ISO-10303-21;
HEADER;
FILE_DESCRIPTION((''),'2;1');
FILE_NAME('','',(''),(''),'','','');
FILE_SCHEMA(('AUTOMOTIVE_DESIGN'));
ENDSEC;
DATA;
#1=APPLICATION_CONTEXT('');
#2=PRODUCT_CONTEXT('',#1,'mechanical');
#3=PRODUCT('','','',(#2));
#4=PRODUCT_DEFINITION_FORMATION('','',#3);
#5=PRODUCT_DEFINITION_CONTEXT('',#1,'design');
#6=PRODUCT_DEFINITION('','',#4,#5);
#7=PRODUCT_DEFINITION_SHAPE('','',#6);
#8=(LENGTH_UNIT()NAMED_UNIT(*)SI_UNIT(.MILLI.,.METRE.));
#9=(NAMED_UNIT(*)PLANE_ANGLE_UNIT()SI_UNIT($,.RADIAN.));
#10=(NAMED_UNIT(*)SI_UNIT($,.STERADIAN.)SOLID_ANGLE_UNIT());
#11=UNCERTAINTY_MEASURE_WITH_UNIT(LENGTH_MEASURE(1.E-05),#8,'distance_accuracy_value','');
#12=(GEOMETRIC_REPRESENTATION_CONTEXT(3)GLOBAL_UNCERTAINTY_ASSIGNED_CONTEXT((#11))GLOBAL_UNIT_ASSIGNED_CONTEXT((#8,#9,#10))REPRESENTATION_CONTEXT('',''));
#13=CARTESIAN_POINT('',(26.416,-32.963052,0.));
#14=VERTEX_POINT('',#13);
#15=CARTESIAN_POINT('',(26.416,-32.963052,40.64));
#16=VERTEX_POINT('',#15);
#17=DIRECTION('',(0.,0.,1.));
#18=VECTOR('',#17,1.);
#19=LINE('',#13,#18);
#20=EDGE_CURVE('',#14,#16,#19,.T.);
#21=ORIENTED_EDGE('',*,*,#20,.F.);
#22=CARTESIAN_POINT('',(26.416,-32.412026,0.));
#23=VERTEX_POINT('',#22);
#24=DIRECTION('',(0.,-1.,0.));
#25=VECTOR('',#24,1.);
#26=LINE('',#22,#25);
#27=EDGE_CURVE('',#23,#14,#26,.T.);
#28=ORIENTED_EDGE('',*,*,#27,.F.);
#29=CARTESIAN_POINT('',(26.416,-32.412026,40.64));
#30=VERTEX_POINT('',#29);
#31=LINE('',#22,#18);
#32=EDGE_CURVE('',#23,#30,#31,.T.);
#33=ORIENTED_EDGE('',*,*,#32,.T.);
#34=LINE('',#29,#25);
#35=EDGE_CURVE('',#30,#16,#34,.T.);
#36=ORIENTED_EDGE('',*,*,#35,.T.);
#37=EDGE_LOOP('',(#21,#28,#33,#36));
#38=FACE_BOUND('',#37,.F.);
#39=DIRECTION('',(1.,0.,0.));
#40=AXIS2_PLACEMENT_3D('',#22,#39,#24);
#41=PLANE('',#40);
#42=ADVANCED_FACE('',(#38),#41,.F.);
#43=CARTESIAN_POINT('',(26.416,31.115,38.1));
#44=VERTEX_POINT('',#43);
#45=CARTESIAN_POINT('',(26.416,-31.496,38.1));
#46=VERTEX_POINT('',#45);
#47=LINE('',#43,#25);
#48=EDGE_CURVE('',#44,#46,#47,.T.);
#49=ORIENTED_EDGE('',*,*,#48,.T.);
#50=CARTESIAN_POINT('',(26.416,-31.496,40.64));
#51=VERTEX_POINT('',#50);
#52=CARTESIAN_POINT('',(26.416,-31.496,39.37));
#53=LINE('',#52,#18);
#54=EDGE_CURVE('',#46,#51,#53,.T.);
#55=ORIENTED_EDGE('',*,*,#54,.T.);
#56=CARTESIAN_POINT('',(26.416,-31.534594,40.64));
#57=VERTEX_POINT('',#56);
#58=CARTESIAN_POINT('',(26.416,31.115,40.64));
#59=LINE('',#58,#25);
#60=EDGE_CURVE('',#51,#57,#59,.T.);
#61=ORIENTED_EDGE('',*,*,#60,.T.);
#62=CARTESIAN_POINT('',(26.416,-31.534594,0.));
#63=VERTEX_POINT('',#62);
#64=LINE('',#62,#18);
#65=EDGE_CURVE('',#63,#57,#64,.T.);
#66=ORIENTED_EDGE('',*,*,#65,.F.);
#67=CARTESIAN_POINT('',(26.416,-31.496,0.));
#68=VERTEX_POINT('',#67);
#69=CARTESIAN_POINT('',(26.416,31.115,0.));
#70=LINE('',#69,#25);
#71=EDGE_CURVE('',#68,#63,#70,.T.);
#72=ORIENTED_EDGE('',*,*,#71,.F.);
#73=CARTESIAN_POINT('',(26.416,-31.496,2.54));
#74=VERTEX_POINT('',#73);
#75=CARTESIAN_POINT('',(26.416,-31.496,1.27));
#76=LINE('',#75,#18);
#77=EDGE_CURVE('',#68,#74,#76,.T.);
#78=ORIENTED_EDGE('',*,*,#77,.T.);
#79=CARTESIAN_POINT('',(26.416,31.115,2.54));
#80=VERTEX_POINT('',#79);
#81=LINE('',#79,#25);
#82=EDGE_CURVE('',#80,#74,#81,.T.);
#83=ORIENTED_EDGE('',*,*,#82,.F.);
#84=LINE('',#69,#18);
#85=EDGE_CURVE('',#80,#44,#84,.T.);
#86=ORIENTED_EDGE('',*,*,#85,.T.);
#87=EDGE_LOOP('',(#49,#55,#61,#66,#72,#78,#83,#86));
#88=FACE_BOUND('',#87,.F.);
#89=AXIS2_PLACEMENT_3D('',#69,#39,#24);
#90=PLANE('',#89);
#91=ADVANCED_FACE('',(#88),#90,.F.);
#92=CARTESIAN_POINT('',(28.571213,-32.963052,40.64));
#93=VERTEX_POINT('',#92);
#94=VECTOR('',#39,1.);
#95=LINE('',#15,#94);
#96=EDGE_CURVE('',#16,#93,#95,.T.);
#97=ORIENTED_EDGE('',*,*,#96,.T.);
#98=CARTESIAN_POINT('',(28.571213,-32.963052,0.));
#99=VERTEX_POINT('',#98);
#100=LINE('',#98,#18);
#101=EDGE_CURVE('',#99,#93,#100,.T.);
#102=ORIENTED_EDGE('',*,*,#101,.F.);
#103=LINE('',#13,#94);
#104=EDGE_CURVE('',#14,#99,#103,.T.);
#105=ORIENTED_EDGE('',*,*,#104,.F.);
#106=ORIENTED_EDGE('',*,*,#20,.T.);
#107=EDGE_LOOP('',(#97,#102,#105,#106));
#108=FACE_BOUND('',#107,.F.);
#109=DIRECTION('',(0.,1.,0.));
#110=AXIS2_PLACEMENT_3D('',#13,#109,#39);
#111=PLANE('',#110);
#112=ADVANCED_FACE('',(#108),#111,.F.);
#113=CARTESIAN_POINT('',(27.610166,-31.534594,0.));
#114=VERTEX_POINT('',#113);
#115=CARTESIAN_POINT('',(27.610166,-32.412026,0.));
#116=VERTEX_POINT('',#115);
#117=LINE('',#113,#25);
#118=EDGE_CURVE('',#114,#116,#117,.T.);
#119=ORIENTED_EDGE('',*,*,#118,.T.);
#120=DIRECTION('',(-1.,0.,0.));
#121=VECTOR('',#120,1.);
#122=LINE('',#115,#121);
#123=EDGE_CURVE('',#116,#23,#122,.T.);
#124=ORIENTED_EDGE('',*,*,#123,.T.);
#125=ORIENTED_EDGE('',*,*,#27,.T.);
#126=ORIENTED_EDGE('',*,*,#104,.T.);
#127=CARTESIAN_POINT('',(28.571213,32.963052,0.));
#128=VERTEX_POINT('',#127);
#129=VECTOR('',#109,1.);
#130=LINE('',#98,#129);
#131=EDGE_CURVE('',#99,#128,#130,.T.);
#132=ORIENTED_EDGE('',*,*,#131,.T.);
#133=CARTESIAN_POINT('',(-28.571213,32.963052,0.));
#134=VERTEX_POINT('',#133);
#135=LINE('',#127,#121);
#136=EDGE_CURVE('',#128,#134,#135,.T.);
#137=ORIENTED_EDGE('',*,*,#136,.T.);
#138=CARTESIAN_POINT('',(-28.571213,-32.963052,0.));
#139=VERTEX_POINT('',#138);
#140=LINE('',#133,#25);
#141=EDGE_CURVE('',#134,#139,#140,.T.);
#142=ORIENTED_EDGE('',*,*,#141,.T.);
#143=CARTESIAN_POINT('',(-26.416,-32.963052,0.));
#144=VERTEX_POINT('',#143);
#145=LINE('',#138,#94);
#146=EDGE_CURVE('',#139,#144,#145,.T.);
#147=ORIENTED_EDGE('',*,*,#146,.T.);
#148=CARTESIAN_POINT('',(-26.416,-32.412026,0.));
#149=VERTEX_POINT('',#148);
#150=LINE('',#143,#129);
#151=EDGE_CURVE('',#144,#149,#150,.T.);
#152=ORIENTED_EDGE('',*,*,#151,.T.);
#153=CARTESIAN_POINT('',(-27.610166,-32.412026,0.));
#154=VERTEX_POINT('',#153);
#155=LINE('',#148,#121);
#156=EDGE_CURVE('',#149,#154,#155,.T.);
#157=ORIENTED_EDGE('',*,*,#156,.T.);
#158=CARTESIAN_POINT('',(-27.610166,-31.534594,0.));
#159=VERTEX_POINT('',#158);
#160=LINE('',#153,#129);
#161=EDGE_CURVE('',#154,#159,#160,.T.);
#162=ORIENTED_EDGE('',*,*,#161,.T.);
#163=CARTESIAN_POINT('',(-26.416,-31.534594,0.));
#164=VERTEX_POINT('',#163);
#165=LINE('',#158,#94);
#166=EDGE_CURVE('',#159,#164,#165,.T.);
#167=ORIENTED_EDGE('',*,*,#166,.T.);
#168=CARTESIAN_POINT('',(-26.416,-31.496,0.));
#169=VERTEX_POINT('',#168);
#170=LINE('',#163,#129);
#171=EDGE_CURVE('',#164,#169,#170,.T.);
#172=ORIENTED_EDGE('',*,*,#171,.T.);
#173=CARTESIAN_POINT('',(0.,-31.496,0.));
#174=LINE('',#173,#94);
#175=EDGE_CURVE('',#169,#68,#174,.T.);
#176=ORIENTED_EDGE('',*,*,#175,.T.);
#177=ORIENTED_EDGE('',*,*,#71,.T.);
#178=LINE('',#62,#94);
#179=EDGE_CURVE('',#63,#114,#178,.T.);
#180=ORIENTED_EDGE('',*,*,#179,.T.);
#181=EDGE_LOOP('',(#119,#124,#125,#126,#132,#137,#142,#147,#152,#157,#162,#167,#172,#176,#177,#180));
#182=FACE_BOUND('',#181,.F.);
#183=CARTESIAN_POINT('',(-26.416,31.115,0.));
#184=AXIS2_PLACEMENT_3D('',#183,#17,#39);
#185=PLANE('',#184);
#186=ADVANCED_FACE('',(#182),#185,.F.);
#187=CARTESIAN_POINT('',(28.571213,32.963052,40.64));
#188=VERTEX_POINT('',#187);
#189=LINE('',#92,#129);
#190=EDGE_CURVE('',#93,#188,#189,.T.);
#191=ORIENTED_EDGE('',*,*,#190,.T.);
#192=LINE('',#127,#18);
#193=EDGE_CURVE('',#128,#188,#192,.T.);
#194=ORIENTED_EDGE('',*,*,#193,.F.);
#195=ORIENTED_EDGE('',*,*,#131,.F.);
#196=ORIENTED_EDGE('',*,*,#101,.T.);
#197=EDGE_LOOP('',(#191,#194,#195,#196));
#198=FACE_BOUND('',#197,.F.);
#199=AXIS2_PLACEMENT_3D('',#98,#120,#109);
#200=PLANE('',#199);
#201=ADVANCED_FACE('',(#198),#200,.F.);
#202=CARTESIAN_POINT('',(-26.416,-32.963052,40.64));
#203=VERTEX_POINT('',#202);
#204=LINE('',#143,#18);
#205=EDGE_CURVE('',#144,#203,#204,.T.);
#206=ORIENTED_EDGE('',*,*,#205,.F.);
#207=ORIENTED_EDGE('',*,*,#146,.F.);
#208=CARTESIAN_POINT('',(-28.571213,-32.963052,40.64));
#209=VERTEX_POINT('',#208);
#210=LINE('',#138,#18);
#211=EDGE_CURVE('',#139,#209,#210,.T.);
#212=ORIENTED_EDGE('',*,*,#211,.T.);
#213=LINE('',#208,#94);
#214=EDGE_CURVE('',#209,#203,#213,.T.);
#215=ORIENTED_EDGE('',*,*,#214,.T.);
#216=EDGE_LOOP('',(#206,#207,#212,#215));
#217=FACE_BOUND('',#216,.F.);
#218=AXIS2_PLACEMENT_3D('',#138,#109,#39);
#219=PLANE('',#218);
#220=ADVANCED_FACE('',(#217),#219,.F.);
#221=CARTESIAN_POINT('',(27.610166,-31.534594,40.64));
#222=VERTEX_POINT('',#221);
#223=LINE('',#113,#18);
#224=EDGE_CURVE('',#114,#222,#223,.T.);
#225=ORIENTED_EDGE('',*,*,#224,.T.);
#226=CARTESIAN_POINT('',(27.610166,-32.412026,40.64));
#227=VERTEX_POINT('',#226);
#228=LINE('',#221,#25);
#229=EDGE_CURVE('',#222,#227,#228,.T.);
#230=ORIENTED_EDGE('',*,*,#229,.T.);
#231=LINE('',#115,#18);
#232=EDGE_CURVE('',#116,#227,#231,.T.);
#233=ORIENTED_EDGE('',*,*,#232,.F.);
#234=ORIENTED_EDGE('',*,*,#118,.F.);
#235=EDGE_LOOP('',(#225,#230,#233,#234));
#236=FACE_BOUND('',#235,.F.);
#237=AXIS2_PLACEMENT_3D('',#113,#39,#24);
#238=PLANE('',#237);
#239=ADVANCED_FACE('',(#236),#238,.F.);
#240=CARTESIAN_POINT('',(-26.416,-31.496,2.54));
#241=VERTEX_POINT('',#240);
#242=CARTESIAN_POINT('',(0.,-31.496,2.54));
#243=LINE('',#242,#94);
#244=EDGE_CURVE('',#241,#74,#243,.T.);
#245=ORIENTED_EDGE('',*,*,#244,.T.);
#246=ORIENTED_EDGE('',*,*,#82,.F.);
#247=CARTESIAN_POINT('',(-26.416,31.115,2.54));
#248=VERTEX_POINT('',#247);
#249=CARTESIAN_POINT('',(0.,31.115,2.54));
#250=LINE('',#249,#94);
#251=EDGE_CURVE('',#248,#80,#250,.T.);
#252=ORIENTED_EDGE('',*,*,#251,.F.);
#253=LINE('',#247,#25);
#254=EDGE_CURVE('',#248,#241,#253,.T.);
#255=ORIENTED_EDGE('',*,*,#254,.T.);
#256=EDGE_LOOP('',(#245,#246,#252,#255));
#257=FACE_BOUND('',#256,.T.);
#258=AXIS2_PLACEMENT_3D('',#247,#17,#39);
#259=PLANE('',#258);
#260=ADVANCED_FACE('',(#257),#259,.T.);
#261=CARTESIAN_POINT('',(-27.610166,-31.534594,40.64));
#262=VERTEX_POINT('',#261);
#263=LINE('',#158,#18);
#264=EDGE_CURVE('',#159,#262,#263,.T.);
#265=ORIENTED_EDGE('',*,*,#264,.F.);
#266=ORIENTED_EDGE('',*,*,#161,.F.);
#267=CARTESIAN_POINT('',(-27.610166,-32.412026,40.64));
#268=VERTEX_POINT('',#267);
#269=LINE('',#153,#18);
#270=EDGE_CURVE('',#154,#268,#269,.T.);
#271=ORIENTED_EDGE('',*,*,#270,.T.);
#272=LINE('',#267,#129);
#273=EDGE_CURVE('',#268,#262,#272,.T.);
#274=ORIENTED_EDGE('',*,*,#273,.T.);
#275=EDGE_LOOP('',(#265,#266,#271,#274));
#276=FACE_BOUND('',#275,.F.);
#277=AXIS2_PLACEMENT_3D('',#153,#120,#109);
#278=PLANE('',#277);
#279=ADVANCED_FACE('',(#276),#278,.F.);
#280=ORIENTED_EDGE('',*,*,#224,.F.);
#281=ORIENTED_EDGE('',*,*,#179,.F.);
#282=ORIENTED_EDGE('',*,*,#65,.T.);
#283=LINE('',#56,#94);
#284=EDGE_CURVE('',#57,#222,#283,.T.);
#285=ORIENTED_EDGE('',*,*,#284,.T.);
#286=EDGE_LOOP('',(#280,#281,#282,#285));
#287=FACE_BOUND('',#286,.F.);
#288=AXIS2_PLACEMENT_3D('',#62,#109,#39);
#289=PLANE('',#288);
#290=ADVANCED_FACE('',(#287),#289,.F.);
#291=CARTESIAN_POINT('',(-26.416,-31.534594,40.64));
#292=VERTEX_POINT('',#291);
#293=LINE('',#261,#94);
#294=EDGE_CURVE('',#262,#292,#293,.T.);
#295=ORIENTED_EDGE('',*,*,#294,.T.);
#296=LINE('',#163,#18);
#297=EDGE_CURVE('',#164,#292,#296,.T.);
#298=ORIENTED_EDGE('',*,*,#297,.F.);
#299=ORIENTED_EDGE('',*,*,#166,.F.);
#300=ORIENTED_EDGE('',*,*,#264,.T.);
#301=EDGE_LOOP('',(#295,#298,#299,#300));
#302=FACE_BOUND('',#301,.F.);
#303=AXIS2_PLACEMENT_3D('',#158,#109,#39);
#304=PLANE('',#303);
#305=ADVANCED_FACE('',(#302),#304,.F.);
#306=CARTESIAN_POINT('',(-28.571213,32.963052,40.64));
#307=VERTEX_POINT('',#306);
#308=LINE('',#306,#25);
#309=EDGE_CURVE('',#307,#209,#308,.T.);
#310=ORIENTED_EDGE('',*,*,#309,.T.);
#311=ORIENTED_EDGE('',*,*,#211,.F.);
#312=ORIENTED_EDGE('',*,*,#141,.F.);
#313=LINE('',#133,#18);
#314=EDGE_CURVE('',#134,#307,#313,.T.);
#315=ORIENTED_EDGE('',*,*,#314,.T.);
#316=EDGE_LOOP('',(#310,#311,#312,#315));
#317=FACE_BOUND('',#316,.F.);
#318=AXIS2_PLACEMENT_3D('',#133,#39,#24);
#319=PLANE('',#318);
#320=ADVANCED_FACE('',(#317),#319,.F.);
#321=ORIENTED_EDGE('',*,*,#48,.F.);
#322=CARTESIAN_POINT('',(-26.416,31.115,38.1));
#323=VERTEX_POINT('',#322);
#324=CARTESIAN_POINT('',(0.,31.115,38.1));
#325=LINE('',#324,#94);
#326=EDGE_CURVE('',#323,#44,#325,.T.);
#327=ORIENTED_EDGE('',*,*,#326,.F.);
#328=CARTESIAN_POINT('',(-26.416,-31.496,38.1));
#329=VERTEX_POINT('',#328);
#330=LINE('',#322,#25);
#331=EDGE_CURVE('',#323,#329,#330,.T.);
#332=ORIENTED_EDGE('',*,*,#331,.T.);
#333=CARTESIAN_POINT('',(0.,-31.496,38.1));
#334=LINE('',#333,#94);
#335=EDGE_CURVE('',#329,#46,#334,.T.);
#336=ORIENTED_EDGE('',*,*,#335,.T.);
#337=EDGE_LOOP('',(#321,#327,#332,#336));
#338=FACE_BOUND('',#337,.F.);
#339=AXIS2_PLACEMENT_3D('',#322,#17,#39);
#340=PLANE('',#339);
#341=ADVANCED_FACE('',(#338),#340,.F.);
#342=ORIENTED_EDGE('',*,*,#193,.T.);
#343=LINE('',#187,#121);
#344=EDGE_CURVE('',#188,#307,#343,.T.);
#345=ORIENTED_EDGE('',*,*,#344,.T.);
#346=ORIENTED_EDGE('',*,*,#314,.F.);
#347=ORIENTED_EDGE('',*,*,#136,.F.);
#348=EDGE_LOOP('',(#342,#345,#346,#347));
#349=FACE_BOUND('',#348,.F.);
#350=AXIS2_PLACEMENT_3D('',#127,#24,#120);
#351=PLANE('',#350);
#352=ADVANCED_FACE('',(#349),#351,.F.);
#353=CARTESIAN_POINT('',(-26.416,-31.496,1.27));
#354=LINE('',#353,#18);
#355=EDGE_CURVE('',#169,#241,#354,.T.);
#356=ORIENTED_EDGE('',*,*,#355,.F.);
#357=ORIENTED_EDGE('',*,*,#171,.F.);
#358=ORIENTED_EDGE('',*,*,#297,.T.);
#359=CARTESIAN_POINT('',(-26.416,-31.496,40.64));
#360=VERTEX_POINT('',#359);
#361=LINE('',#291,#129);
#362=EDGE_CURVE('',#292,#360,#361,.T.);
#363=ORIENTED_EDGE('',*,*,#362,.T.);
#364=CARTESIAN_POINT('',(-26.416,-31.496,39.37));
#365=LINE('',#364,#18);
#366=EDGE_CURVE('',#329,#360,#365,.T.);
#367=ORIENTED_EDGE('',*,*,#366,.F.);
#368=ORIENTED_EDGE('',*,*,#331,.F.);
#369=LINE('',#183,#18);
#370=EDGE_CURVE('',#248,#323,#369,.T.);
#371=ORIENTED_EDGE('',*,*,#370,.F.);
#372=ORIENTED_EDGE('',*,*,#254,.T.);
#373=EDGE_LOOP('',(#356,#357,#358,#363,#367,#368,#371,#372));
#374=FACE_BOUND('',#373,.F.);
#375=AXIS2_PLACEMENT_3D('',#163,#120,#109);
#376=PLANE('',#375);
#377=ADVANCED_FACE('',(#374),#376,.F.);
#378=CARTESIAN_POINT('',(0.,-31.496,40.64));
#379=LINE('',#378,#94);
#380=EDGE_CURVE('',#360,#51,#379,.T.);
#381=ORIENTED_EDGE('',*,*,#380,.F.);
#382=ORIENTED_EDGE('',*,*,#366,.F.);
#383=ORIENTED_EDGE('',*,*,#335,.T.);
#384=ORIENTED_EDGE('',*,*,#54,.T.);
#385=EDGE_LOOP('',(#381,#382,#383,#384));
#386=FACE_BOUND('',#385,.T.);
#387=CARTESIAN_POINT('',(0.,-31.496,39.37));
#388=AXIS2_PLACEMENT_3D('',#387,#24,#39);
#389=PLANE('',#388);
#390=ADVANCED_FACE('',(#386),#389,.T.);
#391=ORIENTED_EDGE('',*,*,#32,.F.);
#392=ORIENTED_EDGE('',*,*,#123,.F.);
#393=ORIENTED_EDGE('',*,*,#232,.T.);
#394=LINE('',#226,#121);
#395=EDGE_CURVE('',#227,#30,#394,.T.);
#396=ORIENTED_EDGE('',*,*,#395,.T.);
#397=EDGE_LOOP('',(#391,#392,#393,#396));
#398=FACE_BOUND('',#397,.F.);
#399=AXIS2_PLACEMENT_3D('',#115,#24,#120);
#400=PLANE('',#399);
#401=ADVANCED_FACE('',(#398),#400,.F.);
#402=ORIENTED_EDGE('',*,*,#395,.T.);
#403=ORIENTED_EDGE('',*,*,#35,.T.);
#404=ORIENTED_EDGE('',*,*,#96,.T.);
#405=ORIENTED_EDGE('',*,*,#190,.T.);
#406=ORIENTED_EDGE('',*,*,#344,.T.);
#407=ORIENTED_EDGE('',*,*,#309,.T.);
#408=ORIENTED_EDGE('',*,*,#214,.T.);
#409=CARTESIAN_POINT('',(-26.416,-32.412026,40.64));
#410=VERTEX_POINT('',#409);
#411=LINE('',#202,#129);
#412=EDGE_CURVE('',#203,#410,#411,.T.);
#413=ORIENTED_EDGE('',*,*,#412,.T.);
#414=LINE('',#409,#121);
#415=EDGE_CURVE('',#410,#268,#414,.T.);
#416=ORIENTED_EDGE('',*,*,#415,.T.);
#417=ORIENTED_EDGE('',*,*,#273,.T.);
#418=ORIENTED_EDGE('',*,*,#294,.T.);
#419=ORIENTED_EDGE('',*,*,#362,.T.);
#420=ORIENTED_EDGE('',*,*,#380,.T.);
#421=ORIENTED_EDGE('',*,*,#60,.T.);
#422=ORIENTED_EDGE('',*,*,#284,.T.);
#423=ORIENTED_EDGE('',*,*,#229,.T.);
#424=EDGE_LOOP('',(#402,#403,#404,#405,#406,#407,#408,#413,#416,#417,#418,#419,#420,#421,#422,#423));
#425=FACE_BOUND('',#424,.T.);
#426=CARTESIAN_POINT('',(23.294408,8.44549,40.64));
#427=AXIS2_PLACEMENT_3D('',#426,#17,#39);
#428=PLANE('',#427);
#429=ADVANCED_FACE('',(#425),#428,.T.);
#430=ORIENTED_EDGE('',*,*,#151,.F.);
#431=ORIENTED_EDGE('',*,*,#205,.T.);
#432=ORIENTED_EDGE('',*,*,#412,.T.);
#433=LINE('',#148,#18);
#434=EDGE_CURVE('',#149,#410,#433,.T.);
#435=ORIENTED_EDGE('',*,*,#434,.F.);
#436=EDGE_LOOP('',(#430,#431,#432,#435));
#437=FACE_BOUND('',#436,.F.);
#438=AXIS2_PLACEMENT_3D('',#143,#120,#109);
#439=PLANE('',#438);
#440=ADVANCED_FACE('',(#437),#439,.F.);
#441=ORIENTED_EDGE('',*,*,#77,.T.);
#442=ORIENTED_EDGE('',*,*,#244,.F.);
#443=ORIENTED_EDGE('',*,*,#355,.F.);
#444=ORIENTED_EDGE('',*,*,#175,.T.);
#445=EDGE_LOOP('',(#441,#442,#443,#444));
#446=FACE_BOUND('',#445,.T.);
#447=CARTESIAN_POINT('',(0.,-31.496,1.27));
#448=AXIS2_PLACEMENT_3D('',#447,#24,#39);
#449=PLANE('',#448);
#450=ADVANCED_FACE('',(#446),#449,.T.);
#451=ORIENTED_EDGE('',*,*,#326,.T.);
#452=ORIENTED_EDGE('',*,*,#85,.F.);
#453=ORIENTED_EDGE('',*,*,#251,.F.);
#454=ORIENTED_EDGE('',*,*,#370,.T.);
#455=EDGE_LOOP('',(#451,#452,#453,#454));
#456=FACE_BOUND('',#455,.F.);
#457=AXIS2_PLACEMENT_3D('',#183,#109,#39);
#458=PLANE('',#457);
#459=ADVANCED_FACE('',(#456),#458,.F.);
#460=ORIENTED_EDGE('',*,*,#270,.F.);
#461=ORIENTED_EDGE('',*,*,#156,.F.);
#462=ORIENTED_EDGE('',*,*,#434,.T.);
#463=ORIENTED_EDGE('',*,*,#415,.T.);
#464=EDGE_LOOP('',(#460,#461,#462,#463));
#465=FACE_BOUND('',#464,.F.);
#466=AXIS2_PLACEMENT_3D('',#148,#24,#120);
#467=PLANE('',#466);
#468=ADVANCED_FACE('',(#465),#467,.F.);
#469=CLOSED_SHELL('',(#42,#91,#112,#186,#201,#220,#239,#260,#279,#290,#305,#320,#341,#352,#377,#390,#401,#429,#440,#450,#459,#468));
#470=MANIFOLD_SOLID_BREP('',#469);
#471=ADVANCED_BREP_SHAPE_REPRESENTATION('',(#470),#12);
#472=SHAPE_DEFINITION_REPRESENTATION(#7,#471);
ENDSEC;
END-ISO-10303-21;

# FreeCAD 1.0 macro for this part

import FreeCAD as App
import Part
import Sketcher
from FreeCAD import Vector
Q = App.Units.Quantity


def add_polygon(sketch, points):
    """Adds a closed chain of lines whose ends are joined by coincident constraints."""
    first, n = sketch.GeometryCount, len(points)
    for a, b in zip(points, points[1:] + points[:1]):
        sketch.addGeometry(Part.LineSegment(App.Vector(*a, 0), App.Vector(*b, 0)), False)
    for i in range(n):
        sketch.addConstraint(Sketcher.Constraint("Coincident", first + i, 2, first + (i + 1) % n, 1))

doc = App.newDocument("Part")
body = doc.addObject("PartDesign::Body", "Body")

sketch1 = body.newObject("Sketcher::SketchObject", "Sketch")
sketch1.AttachmentSupport = (doc.getObject("XY_Plane"), [""])
sketch1.MapMode = "FlatFace"
add_polygon(sketch1, [(26.4, 31.1), (26.4, -31.5), (27.6, -31.5), (27.6, -32.4), (26.4, -32.4), (26.4, -33), (28.6, -33), (28.6, 33), (-28.6, 33), (-28.6, -33), (-26.4, -33), (-26.4, -32.4), (-27.6, -32.4), (-27.6, -31.5), (-26.4, -31.5), (-26.4, 31.1)])
sketch1.addConstraint(Sketcher.Constraint("Vertical", 0))
sketch1.addConstraint(Sketcher.Constraint("Horizontal", 1))
sketch1.addConstraint(Sketcher.Constraint("Vertical", 2))
sketch1.addConstraint(Sketcher.Constraint("Horizontal", 3))
sketch1.addConstraint(Sketcher.Constraint("Vertical", 4))
sketch1.addConstraint(Sketcher.Constraint("Horizontal", 5))
sketch1.addConstraint(Sketcher.Constraint("Vertical", 6))
sketch1.addConstraint(Sketcher.Constraint("Horizontal", 7))
sketch1.addConstraint(Sketcher.Constraint("Vertical", 8))
sketch1.addConstraint(Sketcher.Constraint("Horizontal", 9))
sketch1.addConstraint(Sketcher.Constraint("Vertical", 10))
sketch1.addConstraint(Sketcher.Constraint("Horizontal", 11))
sketch1.addConstraint(Sketcher.Constraint("Vertical", 12))
sketch1.addConstraint(Sketcher.Constraint("Horizontal", 13))
sketch1.addConstraint(Sketcher.Constraint("Vertical", 14))
sketch1.addConstraint(Sketcher.Constraint("Horizontal", 15))
sketch1.addConstraint(Sketcher.Constraint("Symmetric", 5, 2, 7, 2, -1, 1))
sketch1.addConstraint(Sketcher.Constraint("Symmetric", 4, 2, 9, 2, -2))
sketch1.addConstraint(Sketcher.Constraint("Symmetric", 2, 2, 11, 2, -2))
sketch1.addConstraint(Sketcher.Constraint("Symmetric", 0, 2, 13, 2, -2))
sketch1.addConstraint(Sketcher.Constraint("Vertical", 0, 2, 3, 2))
sketch1.addConstraint(Sketcher.Constraint("DistanceX", 15, 1, 15, 2, Q("2.08 in")))
sketch1.addConstraint(Sketcher.Constraint("DistanceY", -1, 1, 14, 2, Q("1.225 in")))
sketch1.addConstraint(Sketcher.Constraint("DistanceY", 2, 2, 2, 1, Q("0.877432 mm")))
sketch1.addConstraint(Sketcher.Constraint("DistanceX", 1, 1, 1, 2, Q("1.194166 mm")))
sketch1.addConstraint(Sketcher.Constraint("DistanceX", 5, 1, 5, 2, Q("2.155213 mm")))
sketch1.addConstraint(Sketcher.Constraint("DistanceY", 0, 2, 0, 1, Q("62.649594 mm")))
sketch1.addConstraint(Sketcher.Constraint("DistanceY", 4, 2, 4, 1, Q("0.551026 mm")))
pad1 = body.newObject("PartDesign::Pad", "Pad")
pad1.Profile = sketch1
pad1.Length = Q("1.6 in")

sketch2 = body.newObject("Sketcher::SketchObject", "Sketch001")
sketch2.AttachmentSupport = (doc.getObject("XZ_Plane"), [""])
sketch2.MapMode = "FlatFace"
sketch2.AttachmentOffset = App.Placement(Vector(0, 0, -1.225 * 25.4), App.Rotation())
add_polygon(sketch2, [(-26.4, 2.5), (-26.4, 0), (26.4, 0), (26.4, 2.5)])
add_polygon(sketch2, [(-26.4, 40.6), (-26.4, 38.1), (26.4, 38.1), (26.4, 40.6)])
sketch2.addConstraint(Sketcher.Constraint("Vertical", 0))
sketch2.addConstraint(Sketcher.Constraint("Horizontal", 1))
sketch2.addConstraint(Sketcher.Constraint("Vertical", 2))
sketch2.addConstraint(Sketcher.Constraint("Horizontal", 3))
sketch2.addConstraint(Sketcher.Constraint("Vertical", 4))
sketch2.addConstraint(Sketcher.Constraint("Horizontal", 5))
sketch2.addConstraint(Sketcher.Constraint("Vertical", 6))
sketch2.addConstraint(Sketcher.Constraint("Horizontal", 7))
sketch2.addConstraint(Sketcher.Constraint("Symmetric", 0, 2, 1, 2, -1, 1))
sketch2.addConstraint(Sketcher.Constraint("Vertical", 3, 2, 4, 2))
sketch2.addConstraint(Sketcher.Constraint("Vertical", 2, 2, 5, 2))
sketch2.addConstraint(Sketcher.Constraint("Equal", 2, 4))
sketch2.addConstraint(Sketcher.Constraint("DistanceY", 0, 2, 0, 1, Q("0.1 in")))
sketch2.addConstraint(Sketcher.Constraint("DistanceX", 1, 1, 1, 2, Q("2.08 in")))
sketch2.addConstraint(Sketcher.Constraint("DistanceY", -1, 1, 4, 2, Q("1.5 in")))
pad2 = body.newObject("PartDesign::Pad", "Pad001")
pad2.Profile = sketch2
pad2.Length = Q("2.465 in")

doc.recompute()
